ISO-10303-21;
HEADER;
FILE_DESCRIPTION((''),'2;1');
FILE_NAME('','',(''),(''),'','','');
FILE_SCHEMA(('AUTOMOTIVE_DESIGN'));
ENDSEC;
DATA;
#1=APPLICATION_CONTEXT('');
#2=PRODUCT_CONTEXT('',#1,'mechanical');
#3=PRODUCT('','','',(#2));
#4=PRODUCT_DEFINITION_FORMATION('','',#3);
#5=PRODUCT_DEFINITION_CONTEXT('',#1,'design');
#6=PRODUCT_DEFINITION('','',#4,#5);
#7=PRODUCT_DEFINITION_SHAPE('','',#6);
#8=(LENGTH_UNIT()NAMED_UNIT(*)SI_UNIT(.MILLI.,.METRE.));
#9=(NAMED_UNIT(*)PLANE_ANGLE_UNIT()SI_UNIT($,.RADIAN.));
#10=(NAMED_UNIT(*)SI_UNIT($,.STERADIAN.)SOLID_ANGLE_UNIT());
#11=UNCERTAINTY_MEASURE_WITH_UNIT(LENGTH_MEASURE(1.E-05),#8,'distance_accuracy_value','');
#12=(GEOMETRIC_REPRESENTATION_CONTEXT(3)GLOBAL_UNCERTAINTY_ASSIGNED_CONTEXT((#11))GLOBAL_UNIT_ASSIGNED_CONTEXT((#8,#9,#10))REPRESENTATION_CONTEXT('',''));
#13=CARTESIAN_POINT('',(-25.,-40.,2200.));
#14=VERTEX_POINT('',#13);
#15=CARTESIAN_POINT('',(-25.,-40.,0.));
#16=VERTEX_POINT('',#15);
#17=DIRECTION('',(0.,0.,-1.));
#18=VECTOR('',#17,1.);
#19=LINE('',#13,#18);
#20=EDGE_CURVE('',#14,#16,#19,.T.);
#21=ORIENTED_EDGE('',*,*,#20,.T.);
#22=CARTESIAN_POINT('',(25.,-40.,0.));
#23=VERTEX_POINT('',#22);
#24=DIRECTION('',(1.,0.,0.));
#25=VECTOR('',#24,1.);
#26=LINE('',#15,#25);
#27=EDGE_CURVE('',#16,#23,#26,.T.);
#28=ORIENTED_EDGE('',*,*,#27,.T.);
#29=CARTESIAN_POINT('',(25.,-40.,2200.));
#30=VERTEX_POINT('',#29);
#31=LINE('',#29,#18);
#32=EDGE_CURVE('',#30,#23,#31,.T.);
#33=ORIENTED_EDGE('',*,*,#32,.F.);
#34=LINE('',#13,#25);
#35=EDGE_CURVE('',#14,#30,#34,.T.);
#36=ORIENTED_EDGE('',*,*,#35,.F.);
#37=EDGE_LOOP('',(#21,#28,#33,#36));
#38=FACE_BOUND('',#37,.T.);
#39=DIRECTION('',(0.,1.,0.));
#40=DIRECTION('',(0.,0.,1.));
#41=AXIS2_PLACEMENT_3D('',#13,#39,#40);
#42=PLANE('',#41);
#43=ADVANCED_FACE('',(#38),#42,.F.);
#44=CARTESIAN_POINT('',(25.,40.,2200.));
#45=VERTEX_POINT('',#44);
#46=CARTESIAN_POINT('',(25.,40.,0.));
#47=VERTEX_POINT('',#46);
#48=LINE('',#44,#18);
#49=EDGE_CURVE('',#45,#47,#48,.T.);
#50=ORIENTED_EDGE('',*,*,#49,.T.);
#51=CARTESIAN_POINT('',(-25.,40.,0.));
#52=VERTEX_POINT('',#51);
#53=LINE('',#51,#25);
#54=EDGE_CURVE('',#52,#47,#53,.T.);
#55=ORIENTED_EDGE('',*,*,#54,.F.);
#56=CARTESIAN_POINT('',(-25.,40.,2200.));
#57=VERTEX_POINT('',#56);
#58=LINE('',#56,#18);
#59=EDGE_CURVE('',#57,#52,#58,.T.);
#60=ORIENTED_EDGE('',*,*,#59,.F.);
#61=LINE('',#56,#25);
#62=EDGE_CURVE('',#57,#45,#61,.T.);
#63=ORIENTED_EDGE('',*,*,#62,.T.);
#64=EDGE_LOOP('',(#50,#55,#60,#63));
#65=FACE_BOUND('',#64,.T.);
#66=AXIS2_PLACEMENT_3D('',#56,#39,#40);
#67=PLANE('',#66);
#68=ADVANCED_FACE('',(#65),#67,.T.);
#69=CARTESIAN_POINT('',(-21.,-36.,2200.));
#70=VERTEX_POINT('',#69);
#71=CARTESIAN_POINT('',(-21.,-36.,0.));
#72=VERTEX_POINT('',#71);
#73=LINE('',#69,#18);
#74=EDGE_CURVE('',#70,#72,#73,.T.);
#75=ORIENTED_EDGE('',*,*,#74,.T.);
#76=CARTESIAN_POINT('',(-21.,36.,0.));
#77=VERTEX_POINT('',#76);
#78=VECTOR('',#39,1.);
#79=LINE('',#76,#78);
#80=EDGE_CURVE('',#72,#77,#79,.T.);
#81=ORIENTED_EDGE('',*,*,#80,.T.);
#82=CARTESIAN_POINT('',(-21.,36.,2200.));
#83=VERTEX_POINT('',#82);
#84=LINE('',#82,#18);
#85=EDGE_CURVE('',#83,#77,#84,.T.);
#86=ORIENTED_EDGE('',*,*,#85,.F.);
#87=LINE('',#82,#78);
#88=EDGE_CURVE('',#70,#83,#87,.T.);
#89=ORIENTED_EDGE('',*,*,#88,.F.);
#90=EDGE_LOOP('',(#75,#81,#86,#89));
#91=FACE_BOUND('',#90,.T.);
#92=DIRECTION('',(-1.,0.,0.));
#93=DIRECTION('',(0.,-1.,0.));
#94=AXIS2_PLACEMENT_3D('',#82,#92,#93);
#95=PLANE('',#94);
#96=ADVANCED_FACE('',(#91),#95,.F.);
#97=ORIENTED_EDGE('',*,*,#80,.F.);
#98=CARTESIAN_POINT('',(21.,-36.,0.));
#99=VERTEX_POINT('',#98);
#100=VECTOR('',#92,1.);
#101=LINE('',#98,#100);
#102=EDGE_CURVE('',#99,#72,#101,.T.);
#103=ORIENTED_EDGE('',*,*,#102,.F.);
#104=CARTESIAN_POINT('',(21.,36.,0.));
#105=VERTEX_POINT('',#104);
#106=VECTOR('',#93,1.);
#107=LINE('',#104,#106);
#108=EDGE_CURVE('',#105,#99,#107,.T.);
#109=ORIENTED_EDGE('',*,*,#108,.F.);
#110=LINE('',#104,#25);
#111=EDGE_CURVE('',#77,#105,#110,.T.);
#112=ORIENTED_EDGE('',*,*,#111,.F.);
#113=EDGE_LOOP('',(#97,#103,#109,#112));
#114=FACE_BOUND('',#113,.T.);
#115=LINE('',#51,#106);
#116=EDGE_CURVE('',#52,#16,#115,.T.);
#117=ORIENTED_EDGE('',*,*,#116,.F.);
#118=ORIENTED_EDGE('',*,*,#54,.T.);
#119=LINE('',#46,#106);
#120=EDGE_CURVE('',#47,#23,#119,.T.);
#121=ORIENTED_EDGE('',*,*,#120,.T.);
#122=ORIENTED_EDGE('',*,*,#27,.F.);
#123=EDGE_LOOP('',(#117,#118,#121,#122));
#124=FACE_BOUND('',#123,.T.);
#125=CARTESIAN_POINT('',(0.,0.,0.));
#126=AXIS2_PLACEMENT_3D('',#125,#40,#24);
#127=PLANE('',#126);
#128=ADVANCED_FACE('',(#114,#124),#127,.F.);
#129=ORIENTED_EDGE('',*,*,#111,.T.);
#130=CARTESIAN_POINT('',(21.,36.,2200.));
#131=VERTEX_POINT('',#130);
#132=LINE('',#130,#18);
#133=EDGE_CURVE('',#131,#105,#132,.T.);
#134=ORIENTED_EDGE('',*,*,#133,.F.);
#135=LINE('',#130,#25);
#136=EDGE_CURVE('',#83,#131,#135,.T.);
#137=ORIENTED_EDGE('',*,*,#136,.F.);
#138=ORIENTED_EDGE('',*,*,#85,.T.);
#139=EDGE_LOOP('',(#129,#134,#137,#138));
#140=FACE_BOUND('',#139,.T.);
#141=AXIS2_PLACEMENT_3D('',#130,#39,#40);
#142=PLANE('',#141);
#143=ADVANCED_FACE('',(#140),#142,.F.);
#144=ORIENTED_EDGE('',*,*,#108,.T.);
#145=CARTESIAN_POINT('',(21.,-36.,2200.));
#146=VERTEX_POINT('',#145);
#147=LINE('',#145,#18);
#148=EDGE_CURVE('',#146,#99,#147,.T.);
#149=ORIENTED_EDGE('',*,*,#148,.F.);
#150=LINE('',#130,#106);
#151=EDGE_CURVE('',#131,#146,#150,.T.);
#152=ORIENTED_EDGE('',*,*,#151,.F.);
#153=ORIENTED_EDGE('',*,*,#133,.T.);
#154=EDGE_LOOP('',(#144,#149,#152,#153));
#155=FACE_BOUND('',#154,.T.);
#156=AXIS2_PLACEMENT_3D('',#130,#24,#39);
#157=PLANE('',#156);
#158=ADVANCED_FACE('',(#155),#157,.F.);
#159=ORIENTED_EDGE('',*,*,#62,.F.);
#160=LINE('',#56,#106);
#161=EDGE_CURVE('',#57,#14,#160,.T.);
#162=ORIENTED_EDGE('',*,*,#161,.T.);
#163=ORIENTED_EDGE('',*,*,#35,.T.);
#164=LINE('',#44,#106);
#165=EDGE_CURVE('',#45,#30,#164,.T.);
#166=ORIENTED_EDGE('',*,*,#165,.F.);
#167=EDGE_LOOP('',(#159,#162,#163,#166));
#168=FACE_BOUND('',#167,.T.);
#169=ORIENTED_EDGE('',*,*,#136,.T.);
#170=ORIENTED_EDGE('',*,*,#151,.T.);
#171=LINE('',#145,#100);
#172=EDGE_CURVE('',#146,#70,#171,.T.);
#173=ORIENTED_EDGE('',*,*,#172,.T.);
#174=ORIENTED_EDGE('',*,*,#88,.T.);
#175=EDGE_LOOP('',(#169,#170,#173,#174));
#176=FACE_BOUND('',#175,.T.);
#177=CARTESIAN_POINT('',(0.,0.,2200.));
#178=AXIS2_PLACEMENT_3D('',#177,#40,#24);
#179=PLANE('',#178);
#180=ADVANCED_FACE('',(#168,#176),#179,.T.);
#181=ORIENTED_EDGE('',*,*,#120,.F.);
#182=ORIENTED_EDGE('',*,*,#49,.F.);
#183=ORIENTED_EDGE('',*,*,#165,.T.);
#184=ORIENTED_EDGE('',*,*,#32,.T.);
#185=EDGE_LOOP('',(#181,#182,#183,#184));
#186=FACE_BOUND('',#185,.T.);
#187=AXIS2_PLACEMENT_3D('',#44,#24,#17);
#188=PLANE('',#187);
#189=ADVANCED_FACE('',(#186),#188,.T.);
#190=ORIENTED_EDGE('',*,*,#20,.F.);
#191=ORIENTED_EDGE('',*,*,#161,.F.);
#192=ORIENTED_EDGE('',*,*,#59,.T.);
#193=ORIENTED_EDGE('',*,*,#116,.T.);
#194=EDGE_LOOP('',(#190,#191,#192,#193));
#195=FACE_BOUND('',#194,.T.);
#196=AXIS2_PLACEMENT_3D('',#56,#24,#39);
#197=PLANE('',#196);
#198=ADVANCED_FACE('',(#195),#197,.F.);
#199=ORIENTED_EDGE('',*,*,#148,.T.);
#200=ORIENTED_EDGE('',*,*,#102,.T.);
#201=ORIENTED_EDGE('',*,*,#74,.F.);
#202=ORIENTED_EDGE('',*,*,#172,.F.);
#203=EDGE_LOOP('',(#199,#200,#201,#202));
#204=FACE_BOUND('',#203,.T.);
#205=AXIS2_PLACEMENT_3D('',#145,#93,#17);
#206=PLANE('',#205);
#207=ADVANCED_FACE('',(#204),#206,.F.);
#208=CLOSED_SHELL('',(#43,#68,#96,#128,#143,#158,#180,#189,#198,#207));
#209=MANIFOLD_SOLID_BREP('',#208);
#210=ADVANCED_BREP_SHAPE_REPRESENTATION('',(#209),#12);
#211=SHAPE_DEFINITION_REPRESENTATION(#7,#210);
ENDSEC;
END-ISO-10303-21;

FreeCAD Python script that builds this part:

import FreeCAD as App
import Part
import Sketcher
from FreeCAD import Vector
Q = App.Units.Quantity


def add_polygon(sketch, points):
    """Adds a closed chain of lines whose ends are joined by coincident constraints."""
    first, n = sketch.GeometryCount, len(points)
    for a, b in zip(points, points[1:] + points[:1]):
        sketch.addGeometry(Part.LineSegment(App.Vector(*a, 0), App.Vector(*b, 0)), False)
    for i in range(n):
        sketch.addConstraint(Sketcher.Constraint("Coincident", first + i, 2, first + (i + 1) % n, 1))

doc = App.newDocument("Part")
body = doc.addObject("PartDesign::Body", "Body")

# Sketch on XY plane
sketch1 = body.newObject("Sketcher::SketchObject", "Sketch")
sketch1.AttachmentSupport = (doc.getObject("XY_Plane"), [""])
sketch1.MapMode = "FlatFace"
add_polygon(sketch1, [(-25, 40), (-25, -40), (25, -40), (25, 40)])  # lines 0-3
sketch1.addConstraint([
    Sketcher.Constraint("Vertical", 0),
    Sketcher.Constraint("Horizontal", 1),
    Sketcher.Constraint("Vertical", 2),
    Sketcher.Constraint("Horizontal", 3),
    Sketcher.Constraint("Symmetric", 0, 2, 2, 2, -1, 1),
    Sketcher.Constraint("DistanceX", 1, 1, 1, 2, Q("50 mm")),
    Sketcher.Constraint("DistanceY", 0, 2, 0, 1, Q("80 mm")),
])
pad1 = body.newObject("PartDesign::Pad", "Pad")
pad1.Profile = sketch1
pad1.Length = 2200

# Sketch on XY plane
sketch2 = body.newObject("Sketcher::SketchObject", "Sketch001")
sketch2.AttachmentSupport = (doc.getObject("XY_Plane"), [""])
sketch2.MapMode = "FlatFace"
add_polygon(sketch2, [(21, 36), (21, -36), (-21, -36), (-21, 36)])  # lines 0-3
sketch2.addConstraint([
    Sketcher.Constraint("Vertical", 0),
    Sketcher.Constraint("Horizontal", 1),
    Sketcher.Constraint("Vertical", 2),
    Sketcher.Constraint("Horizontal", 3),
    Sketcher.Constraint("Symmetric", 0, 2, 2, 2, -1, 1),
    Sketcher.Constraint("DistanceX", 1, 2, 1, 1, Q("42 mm")),
    Sketcher.Constraint("DistanceY", 0, 2, 0, 1, Q("72 mm")),
])
pocket1 = body.newObject("PartDesign::Pocket", "Pocket")
pocket1.Profile = sketch2
pocket1.Length = 2200
pocket1.Reversed = True

doc.recompute()
